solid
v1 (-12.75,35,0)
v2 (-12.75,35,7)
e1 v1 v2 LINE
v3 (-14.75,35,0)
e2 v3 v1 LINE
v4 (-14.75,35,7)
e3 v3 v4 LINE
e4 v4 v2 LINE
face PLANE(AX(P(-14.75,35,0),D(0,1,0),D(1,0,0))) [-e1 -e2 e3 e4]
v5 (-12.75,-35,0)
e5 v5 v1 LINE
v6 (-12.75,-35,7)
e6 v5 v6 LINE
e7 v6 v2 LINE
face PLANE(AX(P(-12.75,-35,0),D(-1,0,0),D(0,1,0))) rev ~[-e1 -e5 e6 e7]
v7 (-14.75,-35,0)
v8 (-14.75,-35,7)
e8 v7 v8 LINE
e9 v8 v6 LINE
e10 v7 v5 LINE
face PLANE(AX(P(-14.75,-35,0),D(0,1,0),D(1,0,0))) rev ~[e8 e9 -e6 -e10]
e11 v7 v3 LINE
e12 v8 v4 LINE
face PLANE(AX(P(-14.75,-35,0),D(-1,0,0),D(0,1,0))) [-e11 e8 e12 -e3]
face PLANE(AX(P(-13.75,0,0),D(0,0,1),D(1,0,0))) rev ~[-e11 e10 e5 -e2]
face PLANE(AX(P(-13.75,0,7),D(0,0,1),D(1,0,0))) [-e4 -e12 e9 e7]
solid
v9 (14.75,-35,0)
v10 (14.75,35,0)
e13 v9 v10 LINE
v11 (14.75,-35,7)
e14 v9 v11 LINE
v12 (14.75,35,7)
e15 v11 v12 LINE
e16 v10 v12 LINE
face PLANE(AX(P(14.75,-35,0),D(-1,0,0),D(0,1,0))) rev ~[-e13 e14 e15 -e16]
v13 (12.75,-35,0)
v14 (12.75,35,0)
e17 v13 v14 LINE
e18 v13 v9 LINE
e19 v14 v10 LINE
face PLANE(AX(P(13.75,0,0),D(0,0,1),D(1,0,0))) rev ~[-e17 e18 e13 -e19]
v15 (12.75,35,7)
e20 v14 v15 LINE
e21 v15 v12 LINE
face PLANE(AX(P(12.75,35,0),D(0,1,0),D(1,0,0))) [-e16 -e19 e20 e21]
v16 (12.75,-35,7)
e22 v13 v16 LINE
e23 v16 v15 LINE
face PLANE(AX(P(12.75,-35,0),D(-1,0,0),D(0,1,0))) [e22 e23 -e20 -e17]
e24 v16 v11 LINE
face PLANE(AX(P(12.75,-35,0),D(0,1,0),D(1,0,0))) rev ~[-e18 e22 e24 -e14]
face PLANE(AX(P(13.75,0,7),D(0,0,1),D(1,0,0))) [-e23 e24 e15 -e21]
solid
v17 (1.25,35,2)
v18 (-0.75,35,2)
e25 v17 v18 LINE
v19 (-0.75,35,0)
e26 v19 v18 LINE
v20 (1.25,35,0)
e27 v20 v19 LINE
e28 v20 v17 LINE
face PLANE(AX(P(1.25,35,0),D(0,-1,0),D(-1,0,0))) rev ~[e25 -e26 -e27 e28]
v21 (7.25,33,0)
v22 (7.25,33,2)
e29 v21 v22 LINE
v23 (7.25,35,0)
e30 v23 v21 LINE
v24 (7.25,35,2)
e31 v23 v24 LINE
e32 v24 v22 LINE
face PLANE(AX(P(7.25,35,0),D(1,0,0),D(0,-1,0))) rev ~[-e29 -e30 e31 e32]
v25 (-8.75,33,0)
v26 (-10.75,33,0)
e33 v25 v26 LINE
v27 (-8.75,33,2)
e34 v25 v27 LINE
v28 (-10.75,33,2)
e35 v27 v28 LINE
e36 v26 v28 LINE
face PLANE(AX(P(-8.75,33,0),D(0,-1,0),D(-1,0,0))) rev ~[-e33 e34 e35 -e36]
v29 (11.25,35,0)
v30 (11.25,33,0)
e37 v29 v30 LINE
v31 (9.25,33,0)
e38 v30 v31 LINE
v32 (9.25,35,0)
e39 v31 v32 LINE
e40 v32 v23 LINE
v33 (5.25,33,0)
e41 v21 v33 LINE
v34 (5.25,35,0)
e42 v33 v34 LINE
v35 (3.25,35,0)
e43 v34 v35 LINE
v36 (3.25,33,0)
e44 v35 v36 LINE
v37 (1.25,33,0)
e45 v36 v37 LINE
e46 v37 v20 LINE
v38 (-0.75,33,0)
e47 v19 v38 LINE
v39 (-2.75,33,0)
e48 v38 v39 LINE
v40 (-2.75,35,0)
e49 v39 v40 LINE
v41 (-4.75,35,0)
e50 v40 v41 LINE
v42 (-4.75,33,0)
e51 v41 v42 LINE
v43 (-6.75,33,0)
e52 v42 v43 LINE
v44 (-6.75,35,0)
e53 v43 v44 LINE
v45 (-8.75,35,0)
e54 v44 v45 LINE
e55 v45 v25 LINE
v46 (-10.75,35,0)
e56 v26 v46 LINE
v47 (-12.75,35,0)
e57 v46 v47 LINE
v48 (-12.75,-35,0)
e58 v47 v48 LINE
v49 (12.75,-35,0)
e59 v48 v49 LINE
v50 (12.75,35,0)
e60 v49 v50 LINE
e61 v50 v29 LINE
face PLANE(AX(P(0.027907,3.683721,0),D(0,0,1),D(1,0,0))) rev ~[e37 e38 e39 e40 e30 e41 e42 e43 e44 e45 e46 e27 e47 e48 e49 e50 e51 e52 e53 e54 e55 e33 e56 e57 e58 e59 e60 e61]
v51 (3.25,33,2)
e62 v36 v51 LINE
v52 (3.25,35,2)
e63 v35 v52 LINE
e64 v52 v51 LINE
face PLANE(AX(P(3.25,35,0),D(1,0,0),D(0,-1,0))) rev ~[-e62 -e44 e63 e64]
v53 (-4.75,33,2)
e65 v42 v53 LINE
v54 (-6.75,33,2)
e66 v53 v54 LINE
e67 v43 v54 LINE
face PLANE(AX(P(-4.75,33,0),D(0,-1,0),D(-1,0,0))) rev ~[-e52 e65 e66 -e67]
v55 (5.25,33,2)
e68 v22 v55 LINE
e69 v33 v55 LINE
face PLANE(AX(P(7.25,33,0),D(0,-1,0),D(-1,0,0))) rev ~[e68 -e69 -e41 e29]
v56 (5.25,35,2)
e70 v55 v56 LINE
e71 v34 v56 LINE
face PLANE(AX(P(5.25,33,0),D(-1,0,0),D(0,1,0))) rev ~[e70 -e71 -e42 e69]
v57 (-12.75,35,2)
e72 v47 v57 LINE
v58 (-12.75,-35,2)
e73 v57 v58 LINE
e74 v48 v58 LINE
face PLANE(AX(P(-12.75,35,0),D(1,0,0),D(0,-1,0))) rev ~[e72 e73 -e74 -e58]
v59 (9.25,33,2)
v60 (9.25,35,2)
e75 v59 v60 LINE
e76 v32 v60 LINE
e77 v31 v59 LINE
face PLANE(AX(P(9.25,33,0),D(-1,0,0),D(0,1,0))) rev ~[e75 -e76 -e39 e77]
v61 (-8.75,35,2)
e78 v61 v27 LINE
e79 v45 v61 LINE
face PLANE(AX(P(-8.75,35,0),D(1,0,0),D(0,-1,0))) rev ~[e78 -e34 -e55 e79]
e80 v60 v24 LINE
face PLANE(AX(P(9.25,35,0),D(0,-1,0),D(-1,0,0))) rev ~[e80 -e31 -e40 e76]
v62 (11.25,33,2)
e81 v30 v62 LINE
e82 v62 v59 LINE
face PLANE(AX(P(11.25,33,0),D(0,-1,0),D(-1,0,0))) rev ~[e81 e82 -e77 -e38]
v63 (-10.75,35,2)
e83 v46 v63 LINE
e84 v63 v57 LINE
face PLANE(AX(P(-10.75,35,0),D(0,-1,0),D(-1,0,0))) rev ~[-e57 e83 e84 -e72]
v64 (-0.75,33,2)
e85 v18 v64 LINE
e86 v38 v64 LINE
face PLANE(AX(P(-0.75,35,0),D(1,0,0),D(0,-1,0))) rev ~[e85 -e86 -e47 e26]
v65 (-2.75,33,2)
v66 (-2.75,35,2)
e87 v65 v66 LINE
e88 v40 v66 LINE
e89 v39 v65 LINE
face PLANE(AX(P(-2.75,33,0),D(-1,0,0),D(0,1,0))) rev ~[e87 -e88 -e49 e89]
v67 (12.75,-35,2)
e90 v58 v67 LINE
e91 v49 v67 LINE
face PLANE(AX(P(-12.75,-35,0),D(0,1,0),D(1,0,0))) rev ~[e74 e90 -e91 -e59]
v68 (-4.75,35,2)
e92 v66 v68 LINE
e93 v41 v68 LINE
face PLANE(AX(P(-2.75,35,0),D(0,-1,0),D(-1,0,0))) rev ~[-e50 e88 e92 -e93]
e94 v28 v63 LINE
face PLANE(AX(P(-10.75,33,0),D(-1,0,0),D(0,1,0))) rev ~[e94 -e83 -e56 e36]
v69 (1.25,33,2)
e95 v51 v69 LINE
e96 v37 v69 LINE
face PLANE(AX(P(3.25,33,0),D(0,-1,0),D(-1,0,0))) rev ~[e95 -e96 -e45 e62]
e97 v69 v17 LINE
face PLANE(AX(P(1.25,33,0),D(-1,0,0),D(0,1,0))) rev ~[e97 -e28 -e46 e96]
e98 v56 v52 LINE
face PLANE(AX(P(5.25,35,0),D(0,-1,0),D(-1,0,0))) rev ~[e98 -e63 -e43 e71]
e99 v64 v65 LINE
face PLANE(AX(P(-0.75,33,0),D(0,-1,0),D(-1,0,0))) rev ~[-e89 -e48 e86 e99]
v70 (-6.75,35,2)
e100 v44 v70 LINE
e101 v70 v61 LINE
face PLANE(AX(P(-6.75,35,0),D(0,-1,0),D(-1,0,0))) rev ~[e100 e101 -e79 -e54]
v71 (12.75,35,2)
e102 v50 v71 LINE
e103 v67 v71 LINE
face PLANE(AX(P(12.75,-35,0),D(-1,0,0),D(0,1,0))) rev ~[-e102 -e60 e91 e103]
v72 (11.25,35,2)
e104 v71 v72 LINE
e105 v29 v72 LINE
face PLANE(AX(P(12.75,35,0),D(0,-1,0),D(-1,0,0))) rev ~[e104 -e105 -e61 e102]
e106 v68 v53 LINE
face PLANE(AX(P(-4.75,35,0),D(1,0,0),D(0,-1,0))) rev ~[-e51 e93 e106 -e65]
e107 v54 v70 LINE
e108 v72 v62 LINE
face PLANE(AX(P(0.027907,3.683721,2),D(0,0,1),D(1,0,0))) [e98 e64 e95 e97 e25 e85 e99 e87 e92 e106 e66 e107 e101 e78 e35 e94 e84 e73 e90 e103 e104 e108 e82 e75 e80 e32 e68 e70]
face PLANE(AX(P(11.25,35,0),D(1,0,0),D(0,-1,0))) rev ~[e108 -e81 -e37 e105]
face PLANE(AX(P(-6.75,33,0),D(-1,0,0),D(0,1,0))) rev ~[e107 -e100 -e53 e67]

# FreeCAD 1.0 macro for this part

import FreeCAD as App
import Part
import Sketcher


def add_polygon(sketch, points):
    """Adds a closed chain of lines whose ends are joined by coincident constraints."""
    first, n = sketch.GeometryCount, len(points)
    for a, b in zip(points, points[1:] + points[:1]):
        sketch.addGeometry(Part.LineSegment(App.Vector(*a, 0), App.Vector(*b, 0)), False)
    for i in range(n):
        sketch.addConstraint(Sketcher.Constraint("Coincident", first + i, 2, first + (i + 1) % n, 1))

doc = App.newDocument("Part")
params = doc.addObject("Spreadsheet::Sheet", "Params")
for row, (alias, value) in enumerate([
    ("sketch1_width", "2 mm"),
    ("sketch1_height", "70 mm"),
    ("pad1_length", "7 mm"),
    ("sketch2_width", "2 mm"),
    ("sketch2_height", "70 mm"),
    ("sketch2_width2", "25.5 mm"),
    ("pad2_length", "2 mm"),
], start=1):
    params.set(f"A{row}", alias)
    params.set(f"B{row}", "=" + value)
    params.setAlias(f"B{row}", alias)

body = doc.addObject("PartDesign::Body", "Body")
body.AllowCompound = True

sketch1 = body.newObject("Sketcher::SketchObject", "Sketch")
sketch1.AttachmentSupport = (doc.getObject("XY_Plane"), [""])
sketch1.MapMode = "FlatFace"
add_polygon(sketch1, [(-14.8, 35), (-14.8, -35), (-12.8, -35), (-12.8, 35)])
add_polygon(sketch1, [(12.8, 35), (12.8, -35), (14.8, -35), (14.8, 35)])
sketch1.addConstraint([
    Sketcher.Constraint("Vertical", 0),
    Sketcher.Constraint("Horizontal", 1),
    Sketcher.Constraint("Vertical", 2),
    Sketcher.Constraint("Horizontal", 3),
    Sketcher.Constraint("Vertical", 4),
    Sketcher.Constraint("Horizontal", 5),
    Sketcher.Constraint("Vertical", 6),
    Sketcher.Constraint("Horizontal", 7),
    Sketcher.Constraint("Symmetric", 2, 2, 4, 2, -1, 1),
    Sketcher.Constraint("Symmetric", 0, 2, 6, 2, -1, 1),
    Sketcher.Constraint("Horizontal", 1, 2, 4, 2),
    Sketcher.Constraint("DistanceX", 1, 1, 1, 2, 2.0),
    Sketcher.Constraint("DistanceY", 0, 2, 0, 1, 70.0),
    Sketcher.Constraint("DistanceX", 1, 2, 4, 2, 25.5),
])
sketch1.setExpression("Constraints[19]", "Params.sketch1_width")
sketch1.setExpression("Constraints[20]", "Params.sketch1_height")
pad1 = body.newObject("PartDesign::Pad", "Pad")
pad1.Profile = sketch1
pad1.setExpression("Length", "Params.pad1_length")
body2 = doc.addObject("PartDesign::Body", "Body001")

sketch2 = body2.newObject("Sketcher::SketchObject", "Sketch001")
sketch2.AttachmentSupport = (doc.getObject("XY_Plane001"), [""])
sketch2.MapMode = "FlatFace"
add_polygon(sketch2, [(-12.8, -35), (12.8, -35), (12.8, 35), (11.2, 35), (11.2, 33), (9.2, 33), (9.2, 35), (7.2, 35), (7.2, 33), (5.2, 33), (5.2, 35), (3.2, 35), (3.2, 33), (1.2, 33), (1.2, 35), (-0.8, 35), (-0.8, 33), (-2.8, 33), (-2.8, 35), (-4.8, 35), (-4.8, 33), (-6.8, 33), (-6.8, 35), (-8.8, 35), (-8.8, 33), (-10.8, 33), (-10.8, 35), (-12.8, 35)])
sketch2.addConstraint([
    Sketcher.Constraint("Horizontal", 0),
    Sketcher.Constraint("Vertical", 1),
    Sketcher.Constraint("Horizontal", 2),
    Sketcher.Constraint("Vertical", 3),
    Sketcher.Constraint("Horizontal", 4),
    Sketcher.Constraint("Vertical", 5),
    Sketcher.Constraint("Horizontal", 6),
    Sketcher.Constraint("Vertical", 7),
    Sketcher.Constraint("Horizontal", 8),
    Sketcher.Constraint("Vertical", 9),
    Sketcher.Constraint("Horizontal", 10),
    Sketcher.Constraint("Vertical", 11),
    Sketcher.Constraint("Horizontal", 12),
    Sketcher.Constraint("Vertical", 13),
    Sketcher.Constraint("Horizontal", 14),
    Sketcher.Constraint("Vertical", 15),
    Sketcher.Constraint("Horizontal", 16),
    Sketcher.Constraint("Vertical", 17),
    Sketcher.Constraint("Horizontal", 18),
    Sketcher.Constraint("Vertical", 19),
    Sketcher.Constraint("Horizontal", 20),
    Sketcher.Constraint("Vertical", 21),
    Sketcher.Constraint("Horizontal", 22),
    Sketcher.Constraint("Vertical", 23),
    Sketcher.Constraint("Horizontal", 24),
    Sketcher.Constraint("Vertical", 25),
    Sketcher.Constraint("Horizontal", 26),
    Sketcher.Constraint("Vertical", 27),
    Sketcher.Constraint("Symmetric", 0, 2, 26, 2, -1, 1),
    Sketcher.Constraint("Horizontal", 2, 2, 5, 2),
    Sketcher.Constraint("Horizontal", 4, 2, 7, 2),
    Sketcher.Constraint("Horizontal", 6, 2, 9, 2),
    Sketcher.Constraint("Horizontal", 8, 2, 11, 2),
    Sketcher.Constraint("Horizontal", 10, 2, 13, 2),
    Sketcher.Constraint("Horizontal", 12, 2, 15, 2),
    Sketcher.Constraint("Horizontal", 14, 2, 17, 2),
    Sketcher.Constraint("Horizontal", 16, 2, 19, 2),
    Sketcher.Constraint("Horizontal", 18, 2, 21, 2),
    Sketcher.Constraint("Horizontal", 20, 2, 23, 2),
    Sketcher.Constraint("Horizontal", 22, 2, 25, 2),
    Sketcher.Constraint("Equal", 4, 6),
    Sketcher.Constraint("Equal", 6, 8),
    Sketcher.Constraint("Equal", 8, 10),
    Sketcher.Constraint("Equal", 10, 12),
    Sketcher.Constraint("Equal", 12, 14),
    Sketcher.Constraint("Equal", 14, 16),
    Sketcher.Constraint("Equal", 16, 18),
    Sketcher.Constraint("Equal", 18, 20),
    Sketcher.Constraint("Equal", 20, 22),
    Sketcher.Constraint("Equal", 22, 24),
    Sketcher.Constraint("Equal", 24, 26),
    Sketcher.Constraint("Equal", 26, 3),
    Sketcher.Constraint("DistanceX", 4, 2, 4, 1, 2.0),
    Sketcher.Constraint("DistanceY", 1, 1, 1, 2, 70.0),
    Sketcher.Constraint("DistanceX", 0, 1, 0, 2, 25.5),
])
sketch2.setExpression("Constraints[80]", "Params.sketch2_width")
sketch2.setExpression("Constraints[81]", "Params.sketch2_height")
sketch2.setExpression("Constraints[82]", "Params.sketch2_width2")
pad2 = body2.newObject("PartDesign::Pad", "Pad001")
pad2.Profile = sketch2
pad2.setExpression("Length", "Params.pad2_length")

doc.recompute()
